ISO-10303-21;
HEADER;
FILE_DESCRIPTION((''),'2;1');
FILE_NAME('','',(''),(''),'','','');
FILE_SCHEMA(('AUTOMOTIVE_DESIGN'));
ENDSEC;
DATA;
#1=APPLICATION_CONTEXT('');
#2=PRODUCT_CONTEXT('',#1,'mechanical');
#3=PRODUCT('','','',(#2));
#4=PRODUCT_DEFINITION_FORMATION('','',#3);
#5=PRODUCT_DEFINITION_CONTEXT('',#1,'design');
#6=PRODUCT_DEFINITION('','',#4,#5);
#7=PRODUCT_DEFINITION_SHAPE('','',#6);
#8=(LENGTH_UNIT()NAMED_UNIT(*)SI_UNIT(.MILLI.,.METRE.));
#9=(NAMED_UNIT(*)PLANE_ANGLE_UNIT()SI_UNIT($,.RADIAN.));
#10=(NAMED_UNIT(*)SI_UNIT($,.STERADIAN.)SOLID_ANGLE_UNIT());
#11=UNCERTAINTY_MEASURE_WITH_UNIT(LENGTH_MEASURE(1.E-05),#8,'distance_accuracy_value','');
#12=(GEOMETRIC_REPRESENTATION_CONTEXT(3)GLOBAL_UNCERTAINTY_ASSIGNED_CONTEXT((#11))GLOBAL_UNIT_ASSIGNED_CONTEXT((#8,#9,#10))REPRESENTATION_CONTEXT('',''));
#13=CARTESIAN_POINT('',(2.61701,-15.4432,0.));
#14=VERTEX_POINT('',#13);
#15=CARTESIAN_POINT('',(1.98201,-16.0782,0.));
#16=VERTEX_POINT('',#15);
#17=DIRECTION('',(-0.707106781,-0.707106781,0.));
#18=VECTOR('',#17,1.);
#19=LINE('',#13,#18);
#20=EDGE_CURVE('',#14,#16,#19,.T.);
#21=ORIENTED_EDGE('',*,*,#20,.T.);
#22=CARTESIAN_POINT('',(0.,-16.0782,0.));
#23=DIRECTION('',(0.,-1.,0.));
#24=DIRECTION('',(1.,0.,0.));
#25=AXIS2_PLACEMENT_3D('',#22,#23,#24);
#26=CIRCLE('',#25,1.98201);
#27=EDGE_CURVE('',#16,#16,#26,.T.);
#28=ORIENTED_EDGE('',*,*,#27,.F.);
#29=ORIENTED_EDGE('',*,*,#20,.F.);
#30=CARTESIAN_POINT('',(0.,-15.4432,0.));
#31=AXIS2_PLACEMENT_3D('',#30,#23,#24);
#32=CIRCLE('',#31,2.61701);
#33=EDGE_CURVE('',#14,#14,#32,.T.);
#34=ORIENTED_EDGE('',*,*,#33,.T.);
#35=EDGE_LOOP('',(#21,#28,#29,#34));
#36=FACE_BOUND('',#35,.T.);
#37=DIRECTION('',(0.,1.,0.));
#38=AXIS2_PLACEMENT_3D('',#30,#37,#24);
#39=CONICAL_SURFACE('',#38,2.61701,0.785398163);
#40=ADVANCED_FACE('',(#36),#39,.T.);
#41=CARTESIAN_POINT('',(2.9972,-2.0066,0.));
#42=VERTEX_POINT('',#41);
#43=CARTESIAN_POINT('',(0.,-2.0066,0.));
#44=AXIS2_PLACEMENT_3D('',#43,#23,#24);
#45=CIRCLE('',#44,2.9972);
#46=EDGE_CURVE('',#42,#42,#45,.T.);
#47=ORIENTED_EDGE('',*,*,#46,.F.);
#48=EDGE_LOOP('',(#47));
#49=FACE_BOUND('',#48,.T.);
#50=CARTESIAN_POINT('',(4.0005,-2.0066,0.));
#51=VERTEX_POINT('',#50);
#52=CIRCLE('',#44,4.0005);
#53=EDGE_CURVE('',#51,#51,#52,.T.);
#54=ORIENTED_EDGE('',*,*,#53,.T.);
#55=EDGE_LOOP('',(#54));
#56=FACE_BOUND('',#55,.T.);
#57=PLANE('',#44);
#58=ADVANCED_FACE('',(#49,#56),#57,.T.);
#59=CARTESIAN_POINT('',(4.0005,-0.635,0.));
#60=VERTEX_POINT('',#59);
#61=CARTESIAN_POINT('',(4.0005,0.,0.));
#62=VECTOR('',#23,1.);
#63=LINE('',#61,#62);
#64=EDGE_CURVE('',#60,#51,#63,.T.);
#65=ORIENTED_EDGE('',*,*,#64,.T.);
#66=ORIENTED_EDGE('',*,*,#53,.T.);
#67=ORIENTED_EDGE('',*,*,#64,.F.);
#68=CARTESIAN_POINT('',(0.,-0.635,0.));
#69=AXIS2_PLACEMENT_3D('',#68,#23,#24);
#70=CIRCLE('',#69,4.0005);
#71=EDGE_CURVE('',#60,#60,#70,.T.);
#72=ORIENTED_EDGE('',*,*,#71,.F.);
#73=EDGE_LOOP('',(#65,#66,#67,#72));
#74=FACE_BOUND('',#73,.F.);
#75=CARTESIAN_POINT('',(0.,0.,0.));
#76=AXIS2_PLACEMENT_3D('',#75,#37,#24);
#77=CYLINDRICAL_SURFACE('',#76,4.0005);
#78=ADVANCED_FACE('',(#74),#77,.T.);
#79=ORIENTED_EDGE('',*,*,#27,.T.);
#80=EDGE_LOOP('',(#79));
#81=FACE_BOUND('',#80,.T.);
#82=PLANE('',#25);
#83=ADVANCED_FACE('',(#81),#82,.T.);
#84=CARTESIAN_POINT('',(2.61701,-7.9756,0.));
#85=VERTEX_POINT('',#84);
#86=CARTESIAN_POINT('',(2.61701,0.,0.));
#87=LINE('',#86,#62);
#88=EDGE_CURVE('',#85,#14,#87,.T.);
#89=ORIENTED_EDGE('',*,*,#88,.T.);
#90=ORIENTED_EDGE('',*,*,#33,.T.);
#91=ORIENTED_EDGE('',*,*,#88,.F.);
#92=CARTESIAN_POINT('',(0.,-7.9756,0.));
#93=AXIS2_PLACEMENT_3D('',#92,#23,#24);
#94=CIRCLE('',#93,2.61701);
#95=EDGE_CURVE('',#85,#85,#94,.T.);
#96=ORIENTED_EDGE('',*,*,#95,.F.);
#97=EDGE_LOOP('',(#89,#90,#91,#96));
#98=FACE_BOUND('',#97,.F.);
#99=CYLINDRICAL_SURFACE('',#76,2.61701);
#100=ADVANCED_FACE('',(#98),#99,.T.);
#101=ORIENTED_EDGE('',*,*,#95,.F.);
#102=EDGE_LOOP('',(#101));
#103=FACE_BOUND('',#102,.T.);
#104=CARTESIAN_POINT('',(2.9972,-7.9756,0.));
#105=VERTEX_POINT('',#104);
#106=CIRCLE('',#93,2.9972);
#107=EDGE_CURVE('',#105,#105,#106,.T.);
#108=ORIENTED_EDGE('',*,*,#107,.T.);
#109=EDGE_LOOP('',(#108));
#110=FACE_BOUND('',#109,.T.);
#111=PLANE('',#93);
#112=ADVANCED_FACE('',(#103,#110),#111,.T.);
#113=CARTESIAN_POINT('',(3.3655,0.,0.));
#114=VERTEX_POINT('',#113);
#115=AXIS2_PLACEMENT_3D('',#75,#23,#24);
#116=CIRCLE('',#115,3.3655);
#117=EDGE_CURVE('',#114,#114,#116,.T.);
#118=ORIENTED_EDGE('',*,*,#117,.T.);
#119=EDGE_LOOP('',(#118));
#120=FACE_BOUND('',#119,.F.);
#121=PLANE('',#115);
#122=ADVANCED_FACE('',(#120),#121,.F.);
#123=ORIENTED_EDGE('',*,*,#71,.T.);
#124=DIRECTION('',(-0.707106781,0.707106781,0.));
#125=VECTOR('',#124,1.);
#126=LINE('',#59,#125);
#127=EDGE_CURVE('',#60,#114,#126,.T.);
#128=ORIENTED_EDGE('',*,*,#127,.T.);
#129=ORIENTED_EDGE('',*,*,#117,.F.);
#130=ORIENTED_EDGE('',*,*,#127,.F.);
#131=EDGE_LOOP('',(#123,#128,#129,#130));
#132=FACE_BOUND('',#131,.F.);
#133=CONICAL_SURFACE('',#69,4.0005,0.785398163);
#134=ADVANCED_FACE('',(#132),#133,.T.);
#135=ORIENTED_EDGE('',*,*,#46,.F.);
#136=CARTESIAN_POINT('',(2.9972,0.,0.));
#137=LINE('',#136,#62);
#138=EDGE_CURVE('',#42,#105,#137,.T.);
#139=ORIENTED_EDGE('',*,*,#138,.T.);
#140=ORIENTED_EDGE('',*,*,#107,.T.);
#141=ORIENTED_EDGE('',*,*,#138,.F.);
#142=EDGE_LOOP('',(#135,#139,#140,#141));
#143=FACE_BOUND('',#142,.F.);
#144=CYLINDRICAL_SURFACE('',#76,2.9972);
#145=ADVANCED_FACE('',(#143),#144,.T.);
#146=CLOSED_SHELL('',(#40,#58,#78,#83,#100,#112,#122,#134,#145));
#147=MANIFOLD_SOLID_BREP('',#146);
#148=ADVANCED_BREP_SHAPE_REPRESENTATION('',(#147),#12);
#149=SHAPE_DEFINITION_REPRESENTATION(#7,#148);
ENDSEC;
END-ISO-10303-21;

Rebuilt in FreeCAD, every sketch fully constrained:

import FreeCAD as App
import Part
import Sketcher
Q = App.Units.Quantity


def edges_at(feature, points):
    """Names of the edges that pass closest to the given points."""
    edges = feature.Shape.Edges
    near = lambda p: min(range(len(edges)), key=lambda i: edges[i].distToShape(Part.Vertex(*p))[0])
    return sorted({f"Edge{near(p) + 1}" for p in points})

doc = App.newDocument("Part")
body = doc.addObject("PartDesign::Body", "Body")

sketch1 = doc.addObject("Sketcher::SketchObject", "Sketch")
body.addObject(sketch1)
sketch1.AttachmentSupport = (doc.XZ_Plane, [""])
sketch1.MapMode = "FlatFace"
sketch1.addGeometry([
    Part.Circle(App.Vector(0, 0, 0), App.Vector(0, 0, 1), 2.9972),
    Part.Circle(App.Vector(0, 0, 0), App.Vector(0, 0, 1), 2.61701),
], False)
sketch1.addConstraint([
    Sketcher.Constraint("Coincident", 0, 3, -1, 1),
    Sketcher.Constraint("Coincident", 1, 3, -1, 1),
    Sketcher.Constraint("Diameter", 0, Q("0.236 in")),
    Sketcher.Constraint("Diameter", 1, 5.23402),
])
pad1 = doc.addObject("PartDesign::Pad", "Pad")
body.addObject(pad1)
pad1.Profile = sketch1
pad1.Length = Q("0.314 in")

sketch2 = doc.addObject("Sketcher::SketchObject", "Sketch001")
body.addObject(sketch2)
sketch2.AttachmentSupport = (doc.XZ_Plane, [""])
sketch2.MapMode = "FlatFace"
sketch2.addGeometry([
    Part.Circle(App.Vector(0, 0, 0), App.Vector(0, 0, 1), 4.0005),
    Part.Circle(App.Vector(0, 0, 0), App.Vector(0, 0, 1), 2.9972),
], False)
sketch2.addConstraint([
    Sketcher.Constraint("Coincident", 0, 3, -1, 1),
    Sketcher.Constraint("Coincident", 1, 3, -1, 1),
    Sketcher.Constraint("Diameter", 0, Q("0.315 in")),
    Sketcher.Constraint("Diameter", 1, Q("0.236 in")),
])
pad2 = doc.addObject("PartDesign::Pad", "Pad001")
body.addObject(pad2)
pad2.Profile = sketch2
pad2.Length = Q("0.079 in")

sketch3 = doc.addObject("Sketcher::SketchObject", "Sketch002")
body.addObject(sketch3)
sketch3.AttachmentSupport = (doc.XZ_Plane, [""])
sketch3.MapMode = "FlatFace"
sketch3.addGeometry(Part.Circle(App.Vector(0, 0, 0), App.Vector(0, 0, 1), 2.61701), False)
sketch3.addConstraint([
    Sketcher.Constraint("Coincident", 0, 3, -1, 1),
    Sketcher.Constraint("Diameter", 0, 5.23402),
])
pad3 = doc.addObject("PartDesign::Pad", "Pad002")
body.addObject(pad3)
pad3.Profile = sketch3
pad3.Length = Q("0.633 in")
doc.recompute()

chamfer = doc.addObject("PartDesign::Chamfer", "Chamfer")
body.addObject(chamfer)
chamfer.Base = (pad3, edges_at(pad3, [(-4, 0, 0), (-2.617, -16.078, 0)]))
chamfer.Size = Q("0.025 in")

doc.recompute()
